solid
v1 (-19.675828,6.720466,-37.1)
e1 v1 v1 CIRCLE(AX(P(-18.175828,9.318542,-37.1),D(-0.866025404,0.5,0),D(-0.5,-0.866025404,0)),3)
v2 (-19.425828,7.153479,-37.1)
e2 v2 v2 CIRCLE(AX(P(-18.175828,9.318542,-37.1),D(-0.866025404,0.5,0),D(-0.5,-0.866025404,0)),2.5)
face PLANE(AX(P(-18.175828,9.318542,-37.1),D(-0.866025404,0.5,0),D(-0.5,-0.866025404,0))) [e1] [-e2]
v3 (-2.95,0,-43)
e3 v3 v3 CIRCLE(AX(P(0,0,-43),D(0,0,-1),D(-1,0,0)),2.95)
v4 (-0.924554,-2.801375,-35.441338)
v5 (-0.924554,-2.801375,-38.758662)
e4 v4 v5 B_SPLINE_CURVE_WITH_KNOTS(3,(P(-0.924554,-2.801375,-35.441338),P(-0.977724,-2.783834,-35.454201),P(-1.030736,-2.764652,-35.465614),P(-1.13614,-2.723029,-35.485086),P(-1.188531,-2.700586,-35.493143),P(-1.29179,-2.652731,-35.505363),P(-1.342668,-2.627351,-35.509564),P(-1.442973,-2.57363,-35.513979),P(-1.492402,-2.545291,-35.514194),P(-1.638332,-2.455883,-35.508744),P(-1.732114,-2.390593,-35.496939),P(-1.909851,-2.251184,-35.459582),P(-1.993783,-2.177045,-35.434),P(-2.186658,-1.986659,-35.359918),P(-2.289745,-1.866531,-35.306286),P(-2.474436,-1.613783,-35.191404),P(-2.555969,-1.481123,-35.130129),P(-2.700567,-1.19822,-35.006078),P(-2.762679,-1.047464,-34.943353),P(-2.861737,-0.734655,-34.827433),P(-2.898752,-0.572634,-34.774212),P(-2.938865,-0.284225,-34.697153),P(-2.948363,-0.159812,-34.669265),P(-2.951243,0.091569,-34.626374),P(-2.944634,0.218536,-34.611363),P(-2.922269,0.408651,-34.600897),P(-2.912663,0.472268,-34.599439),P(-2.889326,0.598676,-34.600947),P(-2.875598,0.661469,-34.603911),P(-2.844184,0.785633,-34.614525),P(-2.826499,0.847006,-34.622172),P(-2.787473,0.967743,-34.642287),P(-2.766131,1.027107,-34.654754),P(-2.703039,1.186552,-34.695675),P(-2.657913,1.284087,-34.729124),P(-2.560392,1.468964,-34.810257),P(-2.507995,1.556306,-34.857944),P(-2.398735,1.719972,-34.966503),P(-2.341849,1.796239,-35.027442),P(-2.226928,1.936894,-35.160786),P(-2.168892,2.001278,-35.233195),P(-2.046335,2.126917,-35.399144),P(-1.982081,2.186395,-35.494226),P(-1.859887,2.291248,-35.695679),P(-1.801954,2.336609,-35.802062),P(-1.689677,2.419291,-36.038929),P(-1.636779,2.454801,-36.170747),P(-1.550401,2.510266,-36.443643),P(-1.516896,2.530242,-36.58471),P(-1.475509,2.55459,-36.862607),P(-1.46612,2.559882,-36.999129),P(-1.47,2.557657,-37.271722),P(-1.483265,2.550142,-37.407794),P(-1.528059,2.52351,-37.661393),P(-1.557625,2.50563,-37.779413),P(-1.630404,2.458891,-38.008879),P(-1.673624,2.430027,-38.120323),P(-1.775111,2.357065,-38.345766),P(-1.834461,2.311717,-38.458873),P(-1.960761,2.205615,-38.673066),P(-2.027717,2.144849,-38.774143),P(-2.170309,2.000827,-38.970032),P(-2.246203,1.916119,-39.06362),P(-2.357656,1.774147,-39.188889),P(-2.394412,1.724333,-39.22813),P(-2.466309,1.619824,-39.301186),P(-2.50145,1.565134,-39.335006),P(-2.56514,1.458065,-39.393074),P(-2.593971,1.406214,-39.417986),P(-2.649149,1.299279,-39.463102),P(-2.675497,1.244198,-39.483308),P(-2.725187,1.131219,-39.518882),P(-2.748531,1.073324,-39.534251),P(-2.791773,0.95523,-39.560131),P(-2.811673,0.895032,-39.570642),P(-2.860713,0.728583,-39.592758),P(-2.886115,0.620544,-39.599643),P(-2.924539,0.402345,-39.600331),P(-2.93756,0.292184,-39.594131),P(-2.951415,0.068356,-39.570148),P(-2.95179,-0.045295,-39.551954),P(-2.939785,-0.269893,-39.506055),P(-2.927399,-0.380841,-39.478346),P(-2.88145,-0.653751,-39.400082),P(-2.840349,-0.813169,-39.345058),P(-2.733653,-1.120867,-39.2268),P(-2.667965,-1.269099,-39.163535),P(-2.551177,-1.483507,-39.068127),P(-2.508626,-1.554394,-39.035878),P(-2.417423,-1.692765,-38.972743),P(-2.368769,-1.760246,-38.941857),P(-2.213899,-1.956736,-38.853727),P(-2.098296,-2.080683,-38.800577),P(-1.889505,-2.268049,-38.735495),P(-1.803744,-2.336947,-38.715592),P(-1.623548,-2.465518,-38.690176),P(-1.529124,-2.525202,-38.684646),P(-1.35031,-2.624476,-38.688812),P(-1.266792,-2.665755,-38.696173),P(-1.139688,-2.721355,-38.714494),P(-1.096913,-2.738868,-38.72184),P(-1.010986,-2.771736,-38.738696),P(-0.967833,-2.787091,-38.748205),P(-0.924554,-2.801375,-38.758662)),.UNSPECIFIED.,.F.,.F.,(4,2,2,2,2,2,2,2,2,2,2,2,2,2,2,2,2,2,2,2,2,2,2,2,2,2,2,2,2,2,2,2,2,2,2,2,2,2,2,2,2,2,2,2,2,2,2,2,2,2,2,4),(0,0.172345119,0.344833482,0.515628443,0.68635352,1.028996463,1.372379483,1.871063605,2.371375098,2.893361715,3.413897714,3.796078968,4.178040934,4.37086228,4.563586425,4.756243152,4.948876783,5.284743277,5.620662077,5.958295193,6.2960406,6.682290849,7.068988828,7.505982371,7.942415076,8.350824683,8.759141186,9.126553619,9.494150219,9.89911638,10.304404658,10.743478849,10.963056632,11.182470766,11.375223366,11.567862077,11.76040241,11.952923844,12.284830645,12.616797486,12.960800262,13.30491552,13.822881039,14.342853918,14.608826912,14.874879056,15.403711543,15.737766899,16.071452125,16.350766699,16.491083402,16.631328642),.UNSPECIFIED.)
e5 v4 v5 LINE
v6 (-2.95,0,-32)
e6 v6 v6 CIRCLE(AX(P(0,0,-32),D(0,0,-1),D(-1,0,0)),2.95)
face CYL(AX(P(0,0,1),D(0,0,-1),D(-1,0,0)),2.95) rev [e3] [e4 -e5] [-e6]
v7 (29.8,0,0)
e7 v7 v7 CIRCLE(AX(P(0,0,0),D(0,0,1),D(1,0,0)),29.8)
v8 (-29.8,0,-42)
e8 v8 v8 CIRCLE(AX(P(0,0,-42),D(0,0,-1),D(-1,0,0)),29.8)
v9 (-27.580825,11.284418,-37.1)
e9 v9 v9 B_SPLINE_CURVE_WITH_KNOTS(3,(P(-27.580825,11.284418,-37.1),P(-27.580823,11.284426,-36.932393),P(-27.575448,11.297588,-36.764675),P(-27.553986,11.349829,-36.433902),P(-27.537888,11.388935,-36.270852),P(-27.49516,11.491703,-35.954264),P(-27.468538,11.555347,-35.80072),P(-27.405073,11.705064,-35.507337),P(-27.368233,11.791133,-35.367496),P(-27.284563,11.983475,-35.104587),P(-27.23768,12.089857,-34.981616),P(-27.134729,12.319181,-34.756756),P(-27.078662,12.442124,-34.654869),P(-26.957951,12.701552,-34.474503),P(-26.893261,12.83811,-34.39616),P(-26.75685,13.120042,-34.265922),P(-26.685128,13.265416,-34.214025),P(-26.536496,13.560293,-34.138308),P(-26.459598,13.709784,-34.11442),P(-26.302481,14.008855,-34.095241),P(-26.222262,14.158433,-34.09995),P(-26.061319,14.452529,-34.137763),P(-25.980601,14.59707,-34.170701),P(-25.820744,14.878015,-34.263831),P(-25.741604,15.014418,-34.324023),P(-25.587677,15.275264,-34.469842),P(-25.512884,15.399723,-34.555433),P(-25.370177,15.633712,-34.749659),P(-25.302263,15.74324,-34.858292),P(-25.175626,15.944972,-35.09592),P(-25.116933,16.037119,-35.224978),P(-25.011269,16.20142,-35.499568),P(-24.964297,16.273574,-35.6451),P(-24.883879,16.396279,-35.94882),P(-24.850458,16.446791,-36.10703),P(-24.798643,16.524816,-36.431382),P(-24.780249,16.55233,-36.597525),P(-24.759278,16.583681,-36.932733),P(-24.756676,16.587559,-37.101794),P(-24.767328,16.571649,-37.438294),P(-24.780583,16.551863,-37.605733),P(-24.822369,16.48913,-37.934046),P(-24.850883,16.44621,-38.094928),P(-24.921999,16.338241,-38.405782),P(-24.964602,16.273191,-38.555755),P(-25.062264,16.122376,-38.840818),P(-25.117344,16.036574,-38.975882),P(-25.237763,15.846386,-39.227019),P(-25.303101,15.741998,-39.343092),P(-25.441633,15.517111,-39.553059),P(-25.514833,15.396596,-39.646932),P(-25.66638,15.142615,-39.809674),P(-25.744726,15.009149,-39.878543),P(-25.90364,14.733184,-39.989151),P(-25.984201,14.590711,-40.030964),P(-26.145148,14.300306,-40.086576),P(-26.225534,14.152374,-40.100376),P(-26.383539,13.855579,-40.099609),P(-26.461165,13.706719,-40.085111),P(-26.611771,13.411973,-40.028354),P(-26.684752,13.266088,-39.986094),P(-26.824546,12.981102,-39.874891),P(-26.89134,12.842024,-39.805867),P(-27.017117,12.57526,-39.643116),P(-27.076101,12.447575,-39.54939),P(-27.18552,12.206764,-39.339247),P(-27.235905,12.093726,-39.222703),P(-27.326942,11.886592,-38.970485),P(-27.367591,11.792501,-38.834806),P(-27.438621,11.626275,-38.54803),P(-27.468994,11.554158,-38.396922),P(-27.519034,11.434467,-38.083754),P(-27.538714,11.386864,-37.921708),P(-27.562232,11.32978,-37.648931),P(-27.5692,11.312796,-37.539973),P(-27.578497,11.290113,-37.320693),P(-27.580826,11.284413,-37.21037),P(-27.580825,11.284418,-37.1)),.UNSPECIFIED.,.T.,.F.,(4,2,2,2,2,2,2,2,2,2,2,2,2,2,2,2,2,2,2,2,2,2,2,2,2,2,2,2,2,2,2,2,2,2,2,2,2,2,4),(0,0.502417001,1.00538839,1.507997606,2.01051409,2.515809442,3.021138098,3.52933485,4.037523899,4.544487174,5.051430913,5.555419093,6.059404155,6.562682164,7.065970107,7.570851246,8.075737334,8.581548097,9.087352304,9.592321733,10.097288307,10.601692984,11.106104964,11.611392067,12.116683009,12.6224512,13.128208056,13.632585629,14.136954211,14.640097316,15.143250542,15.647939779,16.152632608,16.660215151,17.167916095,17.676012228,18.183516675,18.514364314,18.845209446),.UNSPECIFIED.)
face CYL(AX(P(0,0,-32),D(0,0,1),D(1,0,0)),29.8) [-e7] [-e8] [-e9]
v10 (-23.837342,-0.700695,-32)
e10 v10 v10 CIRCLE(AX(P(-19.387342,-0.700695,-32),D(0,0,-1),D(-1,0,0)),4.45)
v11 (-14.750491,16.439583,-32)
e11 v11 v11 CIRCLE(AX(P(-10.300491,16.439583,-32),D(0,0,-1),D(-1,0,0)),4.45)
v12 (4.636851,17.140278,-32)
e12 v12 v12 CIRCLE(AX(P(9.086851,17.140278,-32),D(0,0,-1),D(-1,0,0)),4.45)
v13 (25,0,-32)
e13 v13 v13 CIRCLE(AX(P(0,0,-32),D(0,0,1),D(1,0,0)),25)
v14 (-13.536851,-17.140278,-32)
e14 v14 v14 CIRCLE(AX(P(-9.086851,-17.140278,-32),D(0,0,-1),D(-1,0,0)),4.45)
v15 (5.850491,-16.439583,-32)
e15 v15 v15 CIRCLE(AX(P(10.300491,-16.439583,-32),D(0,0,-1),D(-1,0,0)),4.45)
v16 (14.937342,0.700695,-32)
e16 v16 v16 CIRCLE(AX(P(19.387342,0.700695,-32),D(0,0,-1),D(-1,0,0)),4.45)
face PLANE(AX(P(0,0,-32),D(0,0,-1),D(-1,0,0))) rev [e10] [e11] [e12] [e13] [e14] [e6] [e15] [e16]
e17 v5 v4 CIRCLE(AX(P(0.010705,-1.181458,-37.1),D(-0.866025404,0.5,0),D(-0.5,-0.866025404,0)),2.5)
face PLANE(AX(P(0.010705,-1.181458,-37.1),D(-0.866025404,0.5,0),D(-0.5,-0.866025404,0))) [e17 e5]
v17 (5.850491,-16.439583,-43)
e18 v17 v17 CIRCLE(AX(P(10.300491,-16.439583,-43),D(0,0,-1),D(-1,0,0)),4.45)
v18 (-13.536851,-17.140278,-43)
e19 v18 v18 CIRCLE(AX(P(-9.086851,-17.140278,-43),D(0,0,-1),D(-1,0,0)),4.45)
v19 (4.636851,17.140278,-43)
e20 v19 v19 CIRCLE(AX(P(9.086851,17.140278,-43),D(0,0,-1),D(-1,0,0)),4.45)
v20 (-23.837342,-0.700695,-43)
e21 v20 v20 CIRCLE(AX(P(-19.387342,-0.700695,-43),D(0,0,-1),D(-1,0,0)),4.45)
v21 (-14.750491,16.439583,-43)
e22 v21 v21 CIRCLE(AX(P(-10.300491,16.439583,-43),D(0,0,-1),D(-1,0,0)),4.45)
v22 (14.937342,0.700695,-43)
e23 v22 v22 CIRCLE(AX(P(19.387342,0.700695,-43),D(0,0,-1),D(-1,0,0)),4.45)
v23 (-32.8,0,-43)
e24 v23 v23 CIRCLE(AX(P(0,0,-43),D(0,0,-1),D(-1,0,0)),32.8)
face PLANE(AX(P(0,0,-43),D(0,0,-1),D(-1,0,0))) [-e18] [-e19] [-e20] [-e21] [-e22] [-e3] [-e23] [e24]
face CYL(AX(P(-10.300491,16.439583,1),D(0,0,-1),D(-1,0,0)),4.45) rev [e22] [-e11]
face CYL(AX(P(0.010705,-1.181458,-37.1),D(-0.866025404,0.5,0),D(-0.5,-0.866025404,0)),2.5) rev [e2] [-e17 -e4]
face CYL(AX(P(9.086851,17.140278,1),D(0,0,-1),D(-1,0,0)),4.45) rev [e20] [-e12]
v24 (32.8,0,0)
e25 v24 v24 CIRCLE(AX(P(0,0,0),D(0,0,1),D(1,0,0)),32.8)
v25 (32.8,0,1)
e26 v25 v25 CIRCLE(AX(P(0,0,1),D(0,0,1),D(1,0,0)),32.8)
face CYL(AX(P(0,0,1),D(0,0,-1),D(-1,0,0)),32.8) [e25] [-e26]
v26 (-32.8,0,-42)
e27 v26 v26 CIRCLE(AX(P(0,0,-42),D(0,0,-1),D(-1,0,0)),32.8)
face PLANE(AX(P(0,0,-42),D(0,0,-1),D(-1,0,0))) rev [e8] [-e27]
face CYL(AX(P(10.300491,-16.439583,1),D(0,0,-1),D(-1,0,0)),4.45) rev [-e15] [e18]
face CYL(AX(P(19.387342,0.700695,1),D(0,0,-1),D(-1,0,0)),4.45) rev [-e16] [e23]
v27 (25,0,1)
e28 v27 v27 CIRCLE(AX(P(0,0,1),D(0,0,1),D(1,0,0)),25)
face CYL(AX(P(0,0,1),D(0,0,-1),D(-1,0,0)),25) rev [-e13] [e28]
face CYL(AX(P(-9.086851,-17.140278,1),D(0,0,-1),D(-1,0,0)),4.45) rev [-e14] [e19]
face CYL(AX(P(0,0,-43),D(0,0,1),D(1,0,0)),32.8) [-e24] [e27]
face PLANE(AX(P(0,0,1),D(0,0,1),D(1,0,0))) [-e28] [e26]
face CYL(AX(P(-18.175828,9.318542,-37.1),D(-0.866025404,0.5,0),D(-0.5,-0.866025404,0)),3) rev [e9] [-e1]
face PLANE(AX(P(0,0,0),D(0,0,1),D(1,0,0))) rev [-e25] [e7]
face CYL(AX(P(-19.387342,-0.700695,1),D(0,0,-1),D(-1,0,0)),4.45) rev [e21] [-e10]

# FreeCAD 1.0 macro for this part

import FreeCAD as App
import Part
import Sketcher
from FreeCAD import Vector

doc = App.newDocument("Part")
body = doc.addObject("PartDesign::Body", "Body")

# Sketch on XY plane
sketch1 = body.newObject("Sketcher::SketchObject", "Sketch")
sketch1.AttachmentSupport = (doc.getObject("XY_Plane"), [""])
sketch1.MapMode = "FlatFace"
sketch1.addGeometry([
    Part.Circle(Vector(0, 0, 0), Vector(0, 0, 1), 33),
    Part.Circle(Vector(0, 0, 0), Vector(0, 0, 1), 25),
], False)
sketch1.addConstraint([
    Sketcher.Constraint("Coincident", 0, 3, -1, 1),
    Sketcher.Constraint("Coincident", 1, 3, -1, 1),
    Sketcher.Constraint("Diameter", 1, 50.0),
    Sketcher.Constraint("Diameter", 0, 65.6),
])
pad1 = body.newObject("PartDesign::Pad", "Pad")
pad1.Profile = sketch1
pad1.Length = 1

# Sketch on XY plane
sketch2 = body.newObject("Sketcher::SketchObject", "Sketch001")
sketch2.AttachmentSupport = (doc.getObject("XY_Plane"), [""])
sketch2.MapMode = "FlatFace"
sketch2.AttachmentOffset = App.Placement(Vector(0, 0, -32), App.Rotation())
sketch2.addGeometry([
    Part.Circle(Vector(0, 0, 0), Vector(0, 0, 1), 30),
    Part.Circle(Vector(0, 0, 0), Vector(0, 0, 1), 25),
], False)
sketch2.addConstraint([
    Sketcher.Constraint("Coincident", 0, 3, -1, 1),
    Sketcher.Constraint("Coincident", 1, 3, -1, 1),
    Sketcher.Constraint("Diameter", 1, 50.0),
    Sketcher.Constraint("Diameter", 0, 59.6),
])
pad2 = body.newObject("PartDesign::Pad", "Pad001")
pad2.Profile = sketch2
pad2.Length = 33

# Sketch on XY plane
sketch3 = body.newObject("Sketcher::SketchObject", "Sketch002")
sketch3.AttachmentSupport = (doc.getObject("XY_Plane"), [""])
sketch3.MapMode = "FlatFace"
sketch3.AttachmentOffset = App.Placement(Vector(0, 0, -42), App.Rotation())
sketch3.addGeometry(Part.Circle(Vector(0, 0, 0), Vector(0, 0, 1), 30), False)
sketch3.addConstraint([
    Sketcher.Constraint("Coincident", 0, 3, -1, 1),
    Sketcher.Constraint("Diameter", 0, 59.6),
])
pad3 = body.newObject("PartDesign::Pad", "Pad002")
pad3.Profile = sketch3
pad3.Length = 10

# Sketch on XY plane
sketch4 = body.newObject("Sketcher::SketchObject", "Sketch003")
sketch4.AttachmentSupport = (doc.getObject("XY_Plane"), [""])
sketch4.MapMode = "FlatFace"
sketch4.AttachmentOffset = App.Placement(Vector(0, 0, -43), App.Rotation())
sketch4.addGeometry(Part.Circle(Vector(0, 0, 0), Vector(0, 0, 1), 33), False)
sketch4.addConstraint([
    Sketcher.Constraint("Coincident", 0, 3, -1, 1),
    Sketcher.Constraint("Diameter", 0, 65.6),
])
pad4 = body.newObject("PartDesign::Pad", "Pad003")
pad4.Profile = sketch4
pad4.Length = 1

# Sketch on XY plane
sketch5 = body.newObject("Sketcher::SketchObject", "Sketch004")
sketch5.AttachmentSupport = (doc.getObject("XY_Plane"), [""])
sketch5.MapMode = "FlatFace"
sketch5.AttachmentOffset = App.Placement(Vector(0, 0, -43), App.Rotation())
sketch5.addGeometry(Part.Circle(Vector(0, 0, 0), Vector(0, 0, 1), 3), False)
sketch5.addConstraint([
    Sketcher.Constraint("Coincident", 0, 3, -1, 1),
    Sketcher.Constraint("Diameter", 0, 5.9),
])
pocket1 = body.newObject("PartDesign::Pocket", "Pocket")
pocket1.Profile = sketch5
pocket1.Type = "ThroughAll"
pocket1.Reversed = True

# Sketch on XY plane
sketch6 = body.newObject("Sketcher::SketchObject", "Sketch005")
sketch6.AttachmentSupport = (doc.getObject("XY_Plane"), [""])
sketch6.MapMode = "FlatFace"
sketch6.AttachmentOffset = App.Placement(Vector(0, 0, -43), App.Rotation())
sketch6.addGeometry([
    Part.Circle(Vector(-10.3, 16.4, 0), Vector(0, 0, 1), 4.5),  # 0
    Part.Circle(Vector(-19.4, -0.7, 0), Vector(0, 0, 1), 4.5),  # 1
    Part.Circle(Vector(-9.1, -17.1, 0), Vector(0, 0, 1), 4.5),  # 2
    Part.Circle(Vector(10.3, -16.4, 0), Vector(0, 0, 1), 4.5),  # 3
    Part.Circle(Vector(19.4, 0.7, 0), Vector(0, 0, 1), 4.5),  # 4
    Part.Circle(Vector(9.1, 17.1, 0), Vector(0, 0, 1), 4.5),  # 5
], False)
sketch6.addConstraint([
    Sketcher.Constraint("Equal", 0, 1),
    Sketcher.Constraint("Equal", 1, 2),
    Sketcher.Constraint("Equal", 2, 3),
    Sketcher.Constraint("Equal", 3, 4),
    Sketcher.Constraint("Equal", 4, 5),
    Sketcher.Constraint("Symmetric", 0, 3, 3, 3, -1, 1),
    Sketcher.Constraint("Symmetric", 1, 3, 4, 3, -1, 1),
    Sketcher.Constraint("Symmetric", 2, 3, 5, 3, -1, 1),
    Sketcher.Constraint("Diameter", 0, 8.9),
    Sketcher.Constraint("DistanceX", 0, 3, -1, 1, 10.300491),
    Sketcher.Constraint("DistanceX", 1, 3, -1, 1, 19.387342),
    Sketcher.Constraint("DistanceX", 2, 3, -1, 1, 9.086851),
    Sketcher.Constraint("DistanceY", 2, 3, -1, 1, 17.140278),
    Sketcher.Constraint("DistanceY", 1, 3, 0, 3, 17.140278),
    Sketcher.Constraint("DistanceY", 2, 3, 0, 3, 33.579861),
])
pocket2 = body.newObject("PartDesign::Pocket", "Pocket001")
pocket2.Profile = sketch6
pocket2.Type = "ThroughAll"
pocket2.Reversed = True

# Sketch on an angled plane
sketch7 = body.newObject("Sketcher::SketchObject", "Sketch006")
sketch7.Placement = App.Placement(Vector(-25.807557, 14.9, 0), App.Rotation(Vector(0, 0, 1), Vector(0.5, 0.866025404, 0), Vector(-0.866025404, 0.5, 0), "ZXY"))
sketch7.addGeometry(Part.Circle(Vector(-37.1, -1, 0), Vector(0, 0, 1), 3), False)
sketch7.addConstraint([
    Sketcher.Constraint("Diameter", 0, 6.0),
    Sketcher.Constraint("DistanceX", 0, 3, -1, 1, 37.1),
    Sketcher.Constraint("DistanceY", 0, 3, -1, 1, 1.01782),
])
pocket3 = body.newObject("PartDesign::Pocket", "Pocket002")
pocket3.Profile = sketch7
pocket3.Length = 9.4

# Sketch on an angled plane
sketch8 = body.newObject("Sketcher::SketchObject", "Sketch007")
sketch8.Placement = App.Placement(Vector(-17.666918, 10.2, 0), App.Rotation(Vector(0, 0, 1), Vector(0.5, 0.866025404, 0), Vector(-0.866025404, 0.5, 0), "ZXY"))
sketch8.addGeometry(Part.Circle(Vector(-37.1, -1, 0), Vector(0, 0, 1), 2.5), False)
sketch8.addConstraint([
    Sketcher.Constraint("Diameter", 0, 5.0),
    Sketcher.Constraint("DistanceX", 0, 3, -1, 1, 37.1),
    Sketcher.Constraint("DistanceY", 0, 3, -1, 1, 1.01782),
])
pocket4 = body.newObject("PartDesign::Pocket", "Pocket003")
pocket4.Profile = sketch8
pocket4.Length = 21

doc.recompute()
